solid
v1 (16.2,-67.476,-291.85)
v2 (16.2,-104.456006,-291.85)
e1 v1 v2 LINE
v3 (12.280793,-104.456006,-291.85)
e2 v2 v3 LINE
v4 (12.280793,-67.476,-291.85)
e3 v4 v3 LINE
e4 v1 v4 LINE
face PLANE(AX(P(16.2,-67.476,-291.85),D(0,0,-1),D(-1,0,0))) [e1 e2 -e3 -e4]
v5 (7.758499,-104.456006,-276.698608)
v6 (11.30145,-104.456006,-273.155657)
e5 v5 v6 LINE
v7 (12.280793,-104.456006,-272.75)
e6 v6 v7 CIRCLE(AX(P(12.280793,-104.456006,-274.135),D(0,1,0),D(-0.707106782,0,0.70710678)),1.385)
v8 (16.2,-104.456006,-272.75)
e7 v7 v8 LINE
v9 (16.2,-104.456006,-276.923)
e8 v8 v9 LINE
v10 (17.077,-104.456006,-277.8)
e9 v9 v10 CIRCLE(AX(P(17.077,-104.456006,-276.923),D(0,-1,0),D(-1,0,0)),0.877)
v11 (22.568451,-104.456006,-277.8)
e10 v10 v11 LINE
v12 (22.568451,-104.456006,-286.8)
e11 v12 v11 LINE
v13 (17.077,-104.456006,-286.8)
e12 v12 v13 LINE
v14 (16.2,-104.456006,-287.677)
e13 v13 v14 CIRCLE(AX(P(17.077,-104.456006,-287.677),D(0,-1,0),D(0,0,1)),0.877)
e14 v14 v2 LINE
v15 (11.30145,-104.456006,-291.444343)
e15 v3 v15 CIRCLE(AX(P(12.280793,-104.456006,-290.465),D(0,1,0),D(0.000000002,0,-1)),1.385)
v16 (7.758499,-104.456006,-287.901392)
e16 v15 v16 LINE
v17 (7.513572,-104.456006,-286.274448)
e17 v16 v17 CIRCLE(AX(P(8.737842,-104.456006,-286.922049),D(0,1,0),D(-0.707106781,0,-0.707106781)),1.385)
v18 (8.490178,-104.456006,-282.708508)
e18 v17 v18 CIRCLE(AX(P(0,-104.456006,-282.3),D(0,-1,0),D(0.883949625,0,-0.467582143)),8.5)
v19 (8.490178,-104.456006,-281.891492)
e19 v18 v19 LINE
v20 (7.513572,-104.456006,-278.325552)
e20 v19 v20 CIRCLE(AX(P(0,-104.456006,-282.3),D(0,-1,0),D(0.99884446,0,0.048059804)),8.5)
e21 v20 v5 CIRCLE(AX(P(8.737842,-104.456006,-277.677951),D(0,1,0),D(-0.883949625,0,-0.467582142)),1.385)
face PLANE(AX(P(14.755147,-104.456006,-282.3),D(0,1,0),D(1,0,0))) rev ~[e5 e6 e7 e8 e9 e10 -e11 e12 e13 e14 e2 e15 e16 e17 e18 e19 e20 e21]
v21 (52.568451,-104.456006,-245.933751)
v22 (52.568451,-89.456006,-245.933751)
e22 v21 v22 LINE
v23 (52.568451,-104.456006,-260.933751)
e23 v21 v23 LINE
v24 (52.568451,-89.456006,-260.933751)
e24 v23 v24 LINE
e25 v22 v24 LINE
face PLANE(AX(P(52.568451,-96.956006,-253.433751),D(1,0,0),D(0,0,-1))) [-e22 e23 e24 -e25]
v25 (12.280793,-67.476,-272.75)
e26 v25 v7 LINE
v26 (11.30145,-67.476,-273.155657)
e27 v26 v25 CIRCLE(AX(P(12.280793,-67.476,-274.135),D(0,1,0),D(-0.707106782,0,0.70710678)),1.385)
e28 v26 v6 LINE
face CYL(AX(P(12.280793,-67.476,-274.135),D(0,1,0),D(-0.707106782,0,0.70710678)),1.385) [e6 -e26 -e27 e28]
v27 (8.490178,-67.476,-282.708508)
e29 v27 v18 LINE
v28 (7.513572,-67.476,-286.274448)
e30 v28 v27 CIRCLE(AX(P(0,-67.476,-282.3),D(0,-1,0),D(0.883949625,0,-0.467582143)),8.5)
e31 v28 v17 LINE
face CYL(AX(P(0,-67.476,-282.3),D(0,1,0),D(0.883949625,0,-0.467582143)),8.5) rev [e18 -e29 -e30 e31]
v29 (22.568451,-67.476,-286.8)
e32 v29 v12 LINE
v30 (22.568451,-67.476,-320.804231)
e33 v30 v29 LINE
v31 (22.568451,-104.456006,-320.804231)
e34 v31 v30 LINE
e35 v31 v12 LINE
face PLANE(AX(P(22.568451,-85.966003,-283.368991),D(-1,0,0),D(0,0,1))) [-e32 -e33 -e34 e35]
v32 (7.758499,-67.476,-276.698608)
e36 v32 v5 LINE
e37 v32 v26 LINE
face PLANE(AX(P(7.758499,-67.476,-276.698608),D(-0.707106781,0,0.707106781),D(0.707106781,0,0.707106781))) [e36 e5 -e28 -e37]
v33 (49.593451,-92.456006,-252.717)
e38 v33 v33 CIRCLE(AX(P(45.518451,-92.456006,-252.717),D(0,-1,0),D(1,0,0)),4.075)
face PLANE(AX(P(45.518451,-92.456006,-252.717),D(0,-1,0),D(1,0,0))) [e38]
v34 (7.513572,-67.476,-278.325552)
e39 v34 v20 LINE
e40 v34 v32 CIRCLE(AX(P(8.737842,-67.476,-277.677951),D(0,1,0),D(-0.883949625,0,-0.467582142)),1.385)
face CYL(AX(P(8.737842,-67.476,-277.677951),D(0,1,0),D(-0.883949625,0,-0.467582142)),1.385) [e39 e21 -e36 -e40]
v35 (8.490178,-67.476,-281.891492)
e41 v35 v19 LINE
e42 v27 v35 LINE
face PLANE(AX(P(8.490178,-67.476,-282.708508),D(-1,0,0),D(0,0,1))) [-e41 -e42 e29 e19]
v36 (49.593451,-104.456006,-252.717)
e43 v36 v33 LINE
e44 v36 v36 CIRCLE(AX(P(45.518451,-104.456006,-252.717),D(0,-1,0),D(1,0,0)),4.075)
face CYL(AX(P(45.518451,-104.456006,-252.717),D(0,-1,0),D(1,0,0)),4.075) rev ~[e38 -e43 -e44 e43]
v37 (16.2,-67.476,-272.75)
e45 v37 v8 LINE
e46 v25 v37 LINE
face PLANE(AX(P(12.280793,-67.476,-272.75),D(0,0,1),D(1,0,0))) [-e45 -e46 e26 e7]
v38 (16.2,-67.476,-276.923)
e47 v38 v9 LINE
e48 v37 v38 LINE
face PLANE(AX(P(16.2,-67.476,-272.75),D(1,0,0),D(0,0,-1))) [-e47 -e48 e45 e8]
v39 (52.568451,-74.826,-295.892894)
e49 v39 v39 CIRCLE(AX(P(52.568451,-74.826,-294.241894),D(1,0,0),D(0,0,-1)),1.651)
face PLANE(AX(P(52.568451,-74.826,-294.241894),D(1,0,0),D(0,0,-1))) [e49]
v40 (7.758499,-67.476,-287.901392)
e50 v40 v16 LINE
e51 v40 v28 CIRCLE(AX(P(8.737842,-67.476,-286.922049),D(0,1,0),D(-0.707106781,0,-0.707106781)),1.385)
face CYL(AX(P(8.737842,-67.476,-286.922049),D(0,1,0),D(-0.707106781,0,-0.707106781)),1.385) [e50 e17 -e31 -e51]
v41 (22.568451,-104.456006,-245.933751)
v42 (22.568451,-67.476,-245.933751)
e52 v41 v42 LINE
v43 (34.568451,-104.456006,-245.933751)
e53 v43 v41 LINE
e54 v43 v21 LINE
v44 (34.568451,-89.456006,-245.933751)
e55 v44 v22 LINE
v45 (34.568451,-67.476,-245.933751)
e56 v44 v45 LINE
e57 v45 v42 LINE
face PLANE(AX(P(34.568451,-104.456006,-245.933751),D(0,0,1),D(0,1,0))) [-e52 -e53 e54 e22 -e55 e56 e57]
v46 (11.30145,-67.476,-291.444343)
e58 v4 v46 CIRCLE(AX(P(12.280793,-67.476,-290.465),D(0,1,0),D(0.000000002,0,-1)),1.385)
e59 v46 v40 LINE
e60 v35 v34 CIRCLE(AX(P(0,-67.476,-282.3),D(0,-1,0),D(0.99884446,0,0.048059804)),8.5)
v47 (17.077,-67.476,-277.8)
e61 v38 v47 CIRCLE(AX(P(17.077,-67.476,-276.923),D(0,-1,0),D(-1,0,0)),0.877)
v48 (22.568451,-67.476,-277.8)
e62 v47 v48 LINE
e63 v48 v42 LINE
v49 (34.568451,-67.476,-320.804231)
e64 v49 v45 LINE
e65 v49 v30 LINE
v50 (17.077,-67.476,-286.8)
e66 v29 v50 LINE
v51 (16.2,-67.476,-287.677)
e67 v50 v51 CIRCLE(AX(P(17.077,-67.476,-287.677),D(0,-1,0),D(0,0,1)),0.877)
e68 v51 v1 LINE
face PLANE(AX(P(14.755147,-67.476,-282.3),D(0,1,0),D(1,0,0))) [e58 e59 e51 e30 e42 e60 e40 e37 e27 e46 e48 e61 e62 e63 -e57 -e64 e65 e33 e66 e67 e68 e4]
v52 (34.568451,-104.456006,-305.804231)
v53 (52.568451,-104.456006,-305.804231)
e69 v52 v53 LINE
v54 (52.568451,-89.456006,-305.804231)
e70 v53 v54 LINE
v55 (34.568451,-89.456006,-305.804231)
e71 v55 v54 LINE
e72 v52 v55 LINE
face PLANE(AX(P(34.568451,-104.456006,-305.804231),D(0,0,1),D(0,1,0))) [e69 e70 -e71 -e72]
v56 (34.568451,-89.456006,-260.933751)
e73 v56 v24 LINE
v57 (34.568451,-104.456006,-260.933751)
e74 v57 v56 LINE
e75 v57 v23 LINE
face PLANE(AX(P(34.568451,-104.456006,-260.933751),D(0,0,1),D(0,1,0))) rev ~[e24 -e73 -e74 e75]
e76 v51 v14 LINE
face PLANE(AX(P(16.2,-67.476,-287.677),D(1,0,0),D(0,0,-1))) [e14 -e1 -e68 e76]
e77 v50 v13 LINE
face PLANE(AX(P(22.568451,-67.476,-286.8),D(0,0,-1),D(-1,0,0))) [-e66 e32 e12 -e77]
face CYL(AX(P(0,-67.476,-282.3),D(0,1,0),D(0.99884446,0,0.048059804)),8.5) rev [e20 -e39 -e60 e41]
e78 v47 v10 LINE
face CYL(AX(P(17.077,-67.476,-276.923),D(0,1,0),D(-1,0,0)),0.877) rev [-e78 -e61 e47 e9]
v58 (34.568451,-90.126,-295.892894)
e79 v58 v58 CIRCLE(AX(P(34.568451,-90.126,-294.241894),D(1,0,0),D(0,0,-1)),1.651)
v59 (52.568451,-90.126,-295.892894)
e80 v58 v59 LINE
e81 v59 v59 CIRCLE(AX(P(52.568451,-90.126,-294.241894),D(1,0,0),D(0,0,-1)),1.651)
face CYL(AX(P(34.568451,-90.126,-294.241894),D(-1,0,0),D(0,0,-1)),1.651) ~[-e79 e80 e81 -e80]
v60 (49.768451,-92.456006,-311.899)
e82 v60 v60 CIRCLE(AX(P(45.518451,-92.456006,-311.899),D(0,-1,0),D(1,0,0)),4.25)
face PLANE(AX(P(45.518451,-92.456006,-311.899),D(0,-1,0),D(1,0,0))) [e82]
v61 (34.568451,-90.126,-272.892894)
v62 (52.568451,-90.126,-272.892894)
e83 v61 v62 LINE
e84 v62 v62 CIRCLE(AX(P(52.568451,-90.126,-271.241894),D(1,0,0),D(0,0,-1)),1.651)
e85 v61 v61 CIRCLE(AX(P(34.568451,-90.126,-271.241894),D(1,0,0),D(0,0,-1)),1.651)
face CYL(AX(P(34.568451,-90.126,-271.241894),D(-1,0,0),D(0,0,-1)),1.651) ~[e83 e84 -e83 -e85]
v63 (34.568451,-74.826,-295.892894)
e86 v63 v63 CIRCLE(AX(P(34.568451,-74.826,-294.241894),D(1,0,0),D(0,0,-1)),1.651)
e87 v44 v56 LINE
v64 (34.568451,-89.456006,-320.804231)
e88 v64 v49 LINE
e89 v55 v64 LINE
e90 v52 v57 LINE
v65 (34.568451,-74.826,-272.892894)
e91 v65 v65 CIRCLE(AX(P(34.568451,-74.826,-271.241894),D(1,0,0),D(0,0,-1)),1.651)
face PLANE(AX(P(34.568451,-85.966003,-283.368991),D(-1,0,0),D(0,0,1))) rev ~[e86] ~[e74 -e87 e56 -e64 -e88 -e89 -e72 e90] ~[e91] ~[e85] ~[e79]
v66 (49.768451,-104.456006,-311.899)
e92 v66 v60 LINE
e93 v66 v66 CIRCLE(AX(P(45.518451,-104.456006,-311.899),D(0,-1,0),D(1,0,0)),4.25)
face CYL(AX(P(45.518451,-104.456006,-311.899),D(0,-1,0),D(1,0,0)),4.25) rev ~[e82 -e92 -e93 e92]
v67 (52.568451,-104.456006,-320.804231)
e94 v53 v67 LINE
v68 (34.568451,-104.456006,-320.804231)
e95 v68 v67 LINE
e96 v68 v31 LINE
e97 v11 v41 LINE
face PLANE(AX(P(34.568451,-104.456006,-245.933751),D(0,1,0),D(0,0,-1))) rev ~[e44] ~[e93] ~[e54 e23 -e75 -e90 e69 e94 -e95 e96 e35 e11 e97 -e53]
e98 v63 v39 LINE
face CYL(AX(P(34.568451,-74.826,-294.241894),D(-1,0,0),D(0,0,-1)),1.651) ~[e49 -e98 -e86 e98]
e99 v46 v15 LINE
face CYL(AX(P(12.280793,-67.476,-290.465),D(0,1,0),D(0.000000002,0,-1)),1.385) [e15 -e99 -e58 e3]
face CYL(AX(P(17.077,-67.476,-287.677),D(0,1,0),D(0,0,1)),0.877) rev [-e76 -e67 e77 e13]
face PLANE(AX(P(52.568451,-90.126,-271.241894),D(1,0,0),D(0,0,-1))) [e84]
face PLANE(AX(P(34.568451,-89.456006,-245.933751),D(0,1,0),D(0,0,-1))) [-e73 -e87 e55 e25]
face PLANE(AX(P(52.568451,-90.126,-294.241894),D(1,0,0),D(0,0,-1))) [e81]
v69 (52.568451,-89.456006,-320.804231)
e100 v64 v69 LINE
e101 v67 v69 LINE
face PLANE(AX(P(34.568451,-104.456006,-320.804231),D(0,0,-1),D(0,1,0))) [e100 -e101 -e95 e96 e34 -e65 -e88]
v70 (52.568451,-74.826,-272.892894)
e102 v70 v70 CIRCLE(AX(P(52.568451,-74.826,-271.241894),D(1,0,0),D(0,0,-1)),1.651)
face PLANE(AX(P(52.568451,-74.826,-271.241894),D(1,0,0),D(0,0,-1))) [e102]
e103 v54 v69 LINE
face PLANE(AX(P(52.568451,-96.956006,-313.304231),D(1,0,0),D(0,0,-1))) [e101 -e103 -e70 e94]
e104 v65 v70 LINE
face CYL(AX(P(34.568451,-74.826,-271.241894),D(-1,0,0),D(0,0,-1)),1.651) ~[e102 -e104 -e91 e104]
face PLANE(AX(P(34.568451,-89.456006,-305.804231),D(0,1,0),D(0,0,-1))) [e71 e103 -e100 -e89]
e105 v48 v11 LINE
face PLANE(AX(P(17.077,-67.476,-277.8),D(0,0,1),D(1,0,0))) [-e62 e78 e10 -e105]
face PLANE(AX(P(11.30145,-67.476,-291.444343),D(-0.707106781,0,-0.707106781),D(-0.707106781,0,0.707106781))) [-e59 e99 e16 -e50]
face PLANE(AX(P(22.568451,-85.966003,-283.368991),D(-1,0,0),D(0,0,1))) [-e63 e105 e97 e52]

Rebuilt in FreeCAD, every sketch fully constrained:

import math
import FreeCAD as App
import Part
import Sketcher

V = App.Vector

doc = App.newDocument("Part")
body = doc.addObject("PartDesign::Body", "Body")

# Sketch on YZ plane
sketch1 = body.newObject("Sketcher::SketchObject", "Sketch")
sketch1.AttachmentSupport = (doc.getObject("YZ_Plane"), [""])
sketch1.MapMode = "FlatFace"
sketch1.AttachmentOffset = App.Placement(V(0, 0, 34.568451), App.Rotation())
sketch1.addGeometry([
    Part.LineSegment(V(-67, -321, 0), V(-104, -321, 0)),
    Part.LineSegment(V(-104, -321, 0), V(-104, -246, 0)),
    Part.LineSegment(V(-104, -246, 0), V(-67, -246, 0)),
    Part.LineSegment(V(-67, -246, 0), V(-67, -321, 0)),
], False)
sketch1.addConstraint([
    Sketcher.Constraint("Coincident", 0, 2, 1, 1),
    Sketcher.Constraint("Coincident", 1, 2, 2, 1),
    Sketcher.Constraint("Coincident", 2, 2, 3, 1),
    Sketcher.Constraint("Coincident", 3, 2, 0, 1),
    Sketcher.Constraint("Horizontal", 0),
    Sketcher.Constraint("Vertical", 1),
    Sketcher.Constraint("Horizontal", 2),
    Sketcher.Constraint("Vertical", 3),
    Sketcher.Constraint("DistanceX", 2, 2, -1, 1, 67.476),
    Sketcher.Constraint("DistanceY", 1, 1, 1, 2, 74.87048),
    Sketcher.Constraint("DistanceX", 0, 2, 0, 1, 36.980006),
    Sketcher.Constraint("DistanceY", 0, 2, -1, 1, 320.804231),
])
pad1 = body.newObject("PartDesign::Pad", "Pad")
pad1.Profile = sketch1
pad1.Length = 12
pad1.Reversed = True

# Sketch on YZ plane
sketch2 = body.newObject("Sketcher::SketchObject", "Sketch001")
sketch2.AttachmentSupport = (doc.getObject("YZ_Plane"), [""])
sketch2.MapMode = "FlatFace"
sketch2.AttachmentOffset = App.Placement(V(0, 0, 34.568451), App.Rotation())
sketch2.addGeometry([
    Part.Circle(V(-74.8, -271.2, 0), V(0, 0, 1), 1.7),
    Part.Circle(V(-90.1, -271.2, 0), V(0, 0, 1), 1.7),
    Part.Circle(V(-74.8, -294.2, 0), V(0, 0, 1), 1.7),
    Part.Circle(V(-90.1, -294.2, 0), V(0, 0, 1), 1.7),
], False)
sketch2.addConstraint([
    Sketcher.Constraint("Equal", 0, 1),
    Sketcher.Constraint("Equal", 1, 2),
    Sketcher.Constraint("Equal", 2, 3),
    Sketcher.Constraint("Horizontal", 0, 3, 1, 3),
    Sketcher.Constraint("Horizontal", 2, 3, 3, 3),
    Sketcher.Constraint("Vertical", 0, 3, 2, 3),
    Sketcher.Constraint("Vertical", 1, 3, 3, 3),
    Sketcher.Constraint("Diameter", 0, 3.302),
    Sketcher.Constraint("DistanceY", 2, 3, 0, 3, 23.0),
    Sketcher.Constraint("DistanceX", 1, 3, 0, 3, 15.3),
    Sketcher.Constraint("DistanceX", 0, 3, -1, 1, 74.826),
    Sketcher.Constraint("DistanceY", 0, 3, -1, 1, 271.241894),
])
pad2 = body.newObject("PartDesign::Pad", "Pad001")
pad2.Profile = sketch2
pad2.Length = 18

# Sketch on YZ plane
sketch3 = body.newObject("Sketcher::SketchObject", "Sketch002")
sketch3.AttachmentSupport = (doc.getObject("YZ_Plane"), [""])
sketch3.MapMode = "FlatFace"
sketch3.AttachmentOffset = App.Placement(V(0, 0, 34.568451), App.Rotation())
sketch3.addGeometry([
    Part.LineSegment(V(-89, -246, 0), V(-104, -246, 0)),  # 0
    Part.LineSegment(V(-104, -246, 0), V(-104, -261, 0)),  # 1
    Part.LineSegment(V(-104, -261, 0), V(-89, -261, 0)),  # 2
    Part.LineSegment(V(-89, -261, 0), V(-89, -246, 0)),  # 3
    Part.LineSegment(V(-89, -306, 0), V(-104, -306, 0)),  # 4
    Part.LineSegment(V(-104, -306, 0), V(-104, -321, 0)),  # 5
    Part.LineSegment(V(-104, -321, 0), V(-89, -321, 0)),  # 6
    Part.LineSegment(V(-89, -321, 0), V(-89, -306, 0)),  # 7
], False)
sketch3.addConstraint([
    Sketcher.Constraint("Coincident", 0, 2, 1, 1),
    Sketcher.Constraint("Coincident", 1, 2, 2, 1),
    Sketcher.Constraint("Coincident", 2, 2, 3, 1),
    Sketcher.Constraint("Coincident", 3, 2, 0, 1),
    Sketcher.Constraint("Coincident", 4, 2, 5, 1),
    Sketcher.Constraint("Coincident", 5, 2, 6, 1),
    Sketcher.Constraint("Coincident", 6, 2, 7, 1),
    Sketcher.Constraint("Coincident", 7, 2, 4, 1),
    Sketcher.Constraint("Horizontal", 0),
    Sketcher.Constraint("Vertical", 1),
    Sketcher.Constraint("Horizontal", 2),
    Sketcher.Constraint("Vertical", 3),
    Sketcher.Constraint("Horizontal", 4),
    Sketcher.Constraint("Vertical", 5),
    Sketcher.Constraint("Horizontal", 6),
    Sketcher.Constraint("Vertical", 7),
    Sketcher.Constraint("Vertical", 1, 2, 4, 2),
    Sketcher.Constraint("Vertical", 3, 2, 6, 2),
    Sketcher.Constraint("Equal", 6, 1),
    Sketcher.Constraint("Equal", 3, 5),
    Sketcher.Constraint("DistanceX", 0, 2, 0, 1, 15.0),
    Sketcher.Constraint("DistanceY", 0, 2, -1, 1, 245.933751),
    Sketcher.Constraint("DistanceY", 4, 2, -1, 1, 305.804231),
    Sketcher.Constraint("DistanceX", 0, 2, -1, 1, 104.456006),
])
pad3 = body.newObject("PartDesign::Pad", "Pad002")
pad3.Profile = sketch3
pad3.Length = 18

# Sketch on XZ plane
sketch4 = body.newObject("Sketcher::SketchObject", "Sketch003")
sketch4.AttachmentSupport = (doc.getObject("XZ_Plane"), [""])
sketch4.MapMode = "FlatFace"
sketch4.AttachmentOffset = App.Placement(V(0, 0, 104.456006), App.Rotation())
sketch4.addGeometry([
    Part.Circle(V(45.5, -252.7, 0), V(0, 0, 1), 4.1),
    Part.Circle(V(45.5, -311.9, 0), V(0, 0, 1), 4.2),
], False)
sketch4.addConstraint([
    Sketcher.Constraint("Vertical", 0, 3, 1, 3),
    Sketcher.Constraint("Diameter", 1, 8.5),
    Sketcher.Constraint("Diameter", 0, 8.15),
    Sketcher.Constraint("DistanceY", 0, 3, -1, 1, 252.717),
    Sketcher.Constraint("DistanceY", 1, 3, -1, 1, 311.899),
    Sketcher.Constraint("DistanceX", -1, 1, 0, 3, 45.518451),
])
pocket1 = body.newObject("PartDesign::Pocket", "Pocket")
pocket1.Profile = sketch4
pocket1.Length = 12

# Sketch on XZ plane
sketch5 = body.newObject("Sketcher::SketchObject", "Sketch004")
sketch5.AttachmentSupport = (doc.getObject("XZ_Plane"), [""])
sketch5.MapMode = "FlatFace"
sketch5.AttachmentOffset = App.Placement(V(0, 0, 67.476), App.Rotation())
sketch5.addGeometry([
    Part.LineSegment(V(8.5, -282.7, 0), V(8.5, -281.9, 0)),  # 0
    Part.ArcOfCircle(Part.Circle(V(0, -282.3, 0), V(0, 0, 1), 8.5), math.radians(3), math.radians(28)),  # 1
    Part.ArcOfCircle(Part.Circle(V(8.7, -277.7, 0), V(0, 0, 1), 1.4), math.radians(135), math.radians(208)),  # 2
    Part.LineSegment(V(7.8, -276.7, 0), V(11.3, -273.2, 0)),  # 3
    Part.ArcOfCircle(Part.Circle(V(12.3, -274.1, 0), V(0, 0, 1), 1.4), math.radians(90), math.radians(135)),  # 4
    Part.LineSegment(V(12.3, -272.8, 0), V(16.2, -272.8, 0)),  # 5
    Part.LineSegment(V(16.2, -272.8, 0), V(16.2, -276.9, 0)),  # 6
    Part.ArcOfCircle(Part.Circle(V(17.1, -276.9, 0), V(0, 0, 1), 0.9), math.radians(180), math.radians(270)),  # 7
    Part.LineSegment(V(17.1, -277.8, 0), V(22.6, -277.8, 0)),  # 8
    Part.LineSegment(V(22.6, -277.8, 0), V(22.6, -286.8, 0)),  # 9
    Part.LineSegment(V(22.6, -286.8, 0), V(17.1, -286.8, 0)),  # 10
    Part.ArcOfCircle(Part.Circle(V(17.1, -287.7, 0), V(0, 0, 1), 0.9), math.radians(90), math.radians(180)),  # 11
    Part.LineSegment(V(16.2, -287.7, 0), V(16.2, -291.9, 0)),  # 12
    Part.LineSegment(V(16.2, -291.9, 0), V(12.3, -291.9, 0)),  # 13
    Part.ArcOfCircle(Part.Circle(V(12.3, -290.5, 0), V(0, 0, 1), 1.4), math.radians(-135), math.radians(-90)),  # 14
    Part.LineSegment(V(11.3, -291.4, 0), V(7.8, -287.9, 0)),  # 15
    Part.ArcOfCircle(Part.Circle(V(8.7, -286.9, 0), V(0, 0, 1), 1.4), math.radians(152), math.radians(225)),  # 16
    Part.ArcOfCircle(Part.Circle(V(0, -282.3, 0), V(0, 0, 1), 8.5), math.radians(-28), math.radians(-3)),  # 17
], False)
sketch5.addConstraint([
    Sketcher.Constraint("Coincident", 0, 2, 1, 1),
    Sketcher.Constraint("Tangent", 1, 2, 2, 2),
    Sketcher.Constraint("Tangent", 2, 1, 3, 1),
    Sketcher.Constraint("Tangent", 3, 2, 4, 2),
    Sketcher.Constraint("Tangent", 4, 1, 5, 1),
    Sketcher.Constraint("Coincident", 5, 2, 6, 1),
    Sketcher.Constraint("Tangent", 6, 2, 7, 1),
    Sketcher.Constraint("Tangent", 7, 2, 8, 1),
    Sketcher.Constraint("Coincident", 8, 2, 9, 1),
    Sketcher.Constraint("Coincident", 9, 2, 10, 1),
    Sketcher.Constraint("Tangent", 10, 2, 11, 1),
    Sketcher.Constraint("Tangent", 11, 2, 12, 1),
    Sketcher.Constraint("Coincident", 12, 2, 13, 1),
    Sketcher.Constraint("Tangent", 13, 2, 14, 2),
    Sketcher.Constraint("Tangent", 14, 1, 15, 1),
    Sketcher.Constraint("Tangent", 15, 2, 16, 2),
    Sketcher.Constraint("Tangent", 16, 1, 17, 1),
    Sketcher.Constraint("Coincident", 17, 2, 0, 1),
    Sketcher.Constraint("Vertical", 0),
    Sketcher.Constraint("Horizontal", 5),
    Sketcher.Constraint("Vertical", 6),
    Sketcher.Constraint("Horizontal", 8),
    Sketcher.Constraint("Vertical", 9),
    Sketcher.Constraint("Horizontal", 10),
    Sketcher.Constraint("Vertical", 12),
    Sketcher.Constraint("Horizontal", 13),
    Sketcher.Constraint("Coincident", 17, 3, 1, 3),
    Sketcher.Constraint("Equal", 2, 4),
    Sketcher.Constraint("Equal", 7, 11),
    Sketcher.Constraint("Equal", 4, 14),
    Sketcher.Constraint("Equal", 14, 16),
    Sketcher.Constraint("Equal", 1, 17),
    Sketcher.Constraint("PointOnObject", 1, 3, -2),
    Sketcher.Constraint("Perpendicular", 3, 15),
    Sketcher.Constraint("Vertical", 7, 3, 11, 3),
    Sketcher.Constraint("Vertical", 4, 3, 14, 3),
    Sketcher.Constraint("Vertical", 2, 3, 16, 3),
    Sketcher.Constraint("Vertical", 3, 2, 14, 1),
    Sketcher.Constraint("Equal", 6, 12),
    Sketcher.Constraint("Radius", 1, 8.5),
    Sketcher.Constraint("DistanceY", 9, 2, 9, 1, 9.0),
    Sketcher.Constraint("Radius", 2, 1.385),
    Sketcher.Constraint("Radius", 7, 0.877),
    Sketcher.Constraint("DistanceY", 1, 3, -1, 1, 282.3),
    Sketcher.Constraint("DistanceX", -1, 1, 5, 2, 16.2),
    Sketcher.Constraint("DistanceY", 6, 2, 6, 1, 4.173),
    Sketcher.Constraint("DistanceX", 8, 1, 8, 2, 5.491451),
    Sketcher.Constraint("DistanceX", -1, 1, 2, 1, 7.758499),
    Sketcher.Constraint("DistanceY", 15, 2, 0, 2, 6.009901),
])
pad4 = body.newObject("PartDesign::Pad", "Pad003")
pad4.Profile = sketch5
pad4.Length = 36.980006

doc.recompute()
